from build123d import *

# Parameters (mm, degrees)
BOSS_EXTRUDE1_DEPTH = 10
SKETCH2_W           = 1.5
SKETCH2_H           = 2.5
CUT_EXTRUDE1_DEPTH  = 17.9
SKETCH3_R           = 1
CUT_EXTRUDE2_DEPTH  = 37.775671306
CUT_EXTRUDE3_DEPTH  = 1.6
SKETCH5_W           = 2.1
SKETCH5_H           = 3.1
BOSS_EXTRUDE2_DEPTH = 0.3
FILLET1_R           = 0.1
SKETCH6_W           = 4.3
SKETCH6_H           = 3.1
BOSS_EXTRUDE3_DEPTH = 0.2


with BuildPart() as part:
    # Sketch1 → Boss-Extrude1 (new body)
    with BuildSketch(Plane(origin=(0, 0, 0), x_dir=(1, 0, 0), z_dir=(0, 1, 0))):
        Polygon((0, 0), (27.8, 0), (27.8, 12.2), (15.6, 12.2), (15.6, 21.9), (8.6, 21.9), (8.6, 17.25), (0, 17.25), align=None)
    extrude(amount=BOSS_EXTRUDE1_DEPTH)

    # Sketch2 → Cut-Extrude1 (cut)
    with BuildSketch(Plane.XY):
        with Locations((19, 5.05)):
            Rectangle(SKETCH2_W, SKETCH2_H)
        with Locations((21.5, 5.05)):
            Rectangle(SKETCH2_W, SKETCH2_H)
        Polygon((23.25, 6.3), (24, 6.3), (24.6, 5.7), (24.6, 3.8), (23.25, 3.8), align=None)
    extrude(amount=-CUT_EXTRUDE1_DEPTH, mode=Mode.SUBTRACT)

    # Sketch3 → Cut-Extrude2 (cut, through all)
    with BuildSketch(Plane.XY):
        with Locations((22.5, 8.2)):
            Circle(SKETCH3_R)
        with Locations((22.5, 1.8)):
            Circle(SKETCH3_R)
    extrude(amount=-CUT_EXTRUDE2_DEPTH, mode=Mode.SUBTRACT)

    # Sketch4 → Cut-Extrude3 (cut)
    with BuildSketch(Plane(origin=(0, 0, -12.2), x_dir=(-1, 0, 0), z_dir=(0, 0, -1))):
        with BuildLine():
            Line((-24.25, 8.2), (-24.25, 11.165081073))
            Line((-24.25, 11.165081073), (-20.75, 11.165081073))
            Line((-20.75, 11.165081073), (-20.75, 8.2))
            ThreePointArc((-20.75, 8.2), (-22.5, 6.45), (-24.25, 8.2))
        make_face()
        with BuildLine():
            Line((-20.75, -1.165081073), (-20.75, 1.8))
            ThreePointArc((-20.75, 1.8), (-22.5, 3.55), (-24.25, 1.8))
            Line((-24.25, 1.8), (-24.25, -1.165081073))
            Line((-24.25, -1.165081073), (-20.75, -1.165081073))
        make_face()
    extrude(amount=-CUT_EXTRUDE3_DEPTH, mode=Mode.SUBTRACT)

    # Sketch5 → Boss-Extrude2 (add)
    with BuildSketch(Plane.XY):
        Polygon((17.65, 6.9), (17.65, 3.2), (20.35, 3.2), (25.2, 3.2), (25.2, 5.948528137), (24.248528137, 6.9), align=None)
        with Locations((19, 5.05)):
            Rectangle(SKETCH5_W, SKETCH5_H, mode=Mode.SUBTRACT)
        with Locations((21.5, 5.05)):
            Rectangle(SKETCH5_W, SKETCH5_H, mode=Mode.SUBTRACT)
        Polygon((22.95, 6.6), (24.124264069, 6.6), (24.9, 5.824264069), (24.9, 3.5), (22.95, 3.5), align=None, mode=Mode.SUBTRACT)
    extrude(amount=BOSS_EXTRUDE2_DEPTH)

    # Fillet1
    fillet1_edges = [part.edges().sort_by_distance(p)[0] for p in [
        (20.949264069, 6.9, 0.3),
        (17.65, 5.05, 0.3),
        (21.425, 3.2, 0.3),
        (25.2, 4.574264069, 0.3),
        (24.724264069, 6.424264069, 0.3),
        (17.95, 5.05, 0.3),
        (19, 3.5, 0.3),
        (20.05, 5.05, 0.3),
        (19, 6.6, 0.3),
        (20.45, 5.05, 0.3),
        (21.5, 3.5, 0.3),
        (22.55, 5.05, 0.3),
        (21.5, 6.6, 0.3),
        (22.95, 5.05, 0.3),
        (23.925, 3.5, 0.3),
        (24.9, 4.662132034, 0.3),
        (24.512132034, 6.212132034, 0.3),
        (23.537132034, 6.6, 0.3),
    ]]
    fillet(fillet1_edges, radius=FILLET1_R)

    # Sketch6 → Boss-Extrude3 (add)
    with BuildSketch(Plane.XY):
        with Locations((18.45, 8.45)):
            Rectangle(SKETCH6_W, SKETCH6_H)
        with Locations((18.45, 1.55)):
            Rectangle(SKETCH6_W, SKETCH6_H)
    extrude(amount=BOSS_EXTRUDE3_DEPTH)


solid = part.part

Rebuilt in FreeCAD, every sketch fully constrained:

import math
import FreeCAD as App
import Part
import Sketcher
from FreeCAD import Vector
Q = App.Units.Quantity


def edges_at(feature, points):
    """Names of the edges that pass closest to the given points."""
    edges = feature.Shape.Edges
    near = lambda p: min(range(len(edges)), key=lambda i: edges[i].distToShape(Part.Vertex(*p))[0])
    return sorted({f"Edge{near(p) + 1}" for p in points})


def add_polygon(sketch, points):
    """Adds a closed chain of lines whose ends are joined by coincident constraints."""
    first, n = sketch.GeometryCount, len(points)
    for a, b in zip(points, points[1:] + points[:1]):
        sketch.addGeometry(Part.LineSegment(App.Vector(*a, 0), App.Vector(*b, 0)), False)
    for i in range(n):
        sketch.addConstraint(Sketcher.Constraint("Coincident", first + i, 2, first + (i + 1) % n, 1))

doc = App.newDocument("Part")
body = doc.addObject("PartDesign::Body", "Body")

# Sketch on XZ plane
sketch1 = body.newObject("Sketcher::SketchObject", "Sketch")
sketch1.AttachmentSupport = (doc.getObject("XZ_Plane"), [""])
sketch1.MapMode = "FlatFace"
add_polygon(sketch1, [(0, 0), (27.8, 0), (27.8, -12.2), (15.6, -12.2), (15.6, -21.9), (8.6, -21.9), (8.6, -17.2), (0, -17.2)])  # lines 0-7
sketch1.addConstraint(Sketcher.Constraint("Horizontal", 0))
sketch1.addConstraint(Sketcher.Constraint("Vertical", 1))
sketch1.addConstraint(Sketcher.Constraint("Horizontal", 2))
sketch1.addConstraint(Sketcher.Constraint("Vertical", 3))
sketch1.addConstraint(Sketcher.Constraint("Horizontal", 4))
sketch1.addConstraint(Sketcher.Constraint("Vertical", 5))
sketch1.addConstraint(Sketcher.Constraint("Horizontal", 6))
sketch1.addConstraint(Sketcher.Constraint("Vertical", 7))
sketch1.addConstraint(Sketcher.Constraint("Coincident", 7, 2, -1, 1))
sketch1.addConstraint(Sketcher.Constraint("Equal", 2, 1))
sketch1.addConstraint(Sketcher.Constraint("DistanceX", 4, 2, 4, 1, 7.0))
sketch1.addConstraint(Sketcher.Constraint("DistanceX", 0, 1, 0, 2, 27.8))
sketch1.addConstraint(Sketcher.Constraint("DistanceX", 2, 2, 2, 1, 12.2))
sketch1.addConstraint(Sketcher.Constraint("DistanceY", 3, 2, 3, 1, 9.7))
sketch1.addConstraint(Sketcher.Constraint("DistanceY", 5, 1, 5, 2, 4.65))
pad1 = body.newObject("PartDesign::Pad", "Pad")
pad1.Profile = sketch1
pad1.Length = 10
pad1.Reversed = True

# Sketch on XY plane
sketch2 = body.newObject("Sketcher::SketchObject", "Sketch001")
sketch2.AttachmentSupport = (doc.getObject("XY_Plane"), [""])
sketch2.MapMode = "FlatFace"
add_polygon(sketch2, [(18.2, 6.3), (18.2, 3.8), (19.8, 3.8), (19.8, 6.3)])  # lines 0-3
add_polygon(sketch2, [(20.8, 6.3), (20.8, 3.8), (22.2, 3.8), (22.2, 6.3)])  # lines 4-7
add_polygon(sketch2, [(24, 6.3), (23.2, 6.3), (23.2, 3.8), (24.6, 3.8), (24.6, 5.7)])  # lines 8-12
sketch2.addConstraint(Sketcher.Constraint("Vertical", 0))
sketch2.addConstraint(Sketcher.Constraint("Horizontal", 1))
sketch2.addConstraint(Sketcher.Constraint("Vertical", 2))
sketch2.addConstraint(Sketcher.Constraint("Horizontal", 3))
sketch2.addConstraint(Sketcher.Constraint("Vertical", 4))
sketch2.addConstraint(Sketcher.Constraint("Horizontal", 5))
sketch2.addConstraint(Sketcher.Constraint("Vertical", 6))
sketch2.addConstraint(Sketcher.Constraint("Horizontal", 7))
sketch2.addConstraint(Sketcher.Constraint("Horizontal", 8))
sketch2.addConstraint(Sketcher.Constraint("Vertical", 9))
sketch2.addConstraint(Sketcher.Constraint("Horizontal", 10))
sketch2.addConstraint(Sketcher.Constraint("Vertical", 11))
sketch2.addConstraint(Sketcher.Constraint("Horizontal", 1, 2, 4, 2))
sketch2.addConstraint(Sketcher.Constraint("Horizontal", 3, 2, 6, 2))
sketch2.addConstraint(Sketcher.Constraint("Horizontal", 7, 2, 8, 2))
sketch2.addConstraint(Sketcher.Constraint("Horizontal", 5, 2, 9, 2))
sketch2.addConstraint(Sketcher.Constraint("Equal", 3, 5))
sketch2.addConstraint(Sketcher.Constraint("Angle", 12, Q("135 deg")))
sketch2.addConstraint(Sketcher.Constraint("DistanceX", 1, 1, 1, 2, 1.5))
sketch2.addConstraint(Sketcher.Constraint("DistanceY", 0, 2, 0, 1, 2.5))
sketch2.addConstraint(Sketcher.Constraint("DistanceY", 11, 1, 11, 2, 1.9))
sketch2.addConstraint(Sketcher.Constraint("DistanceX", -1, 1, 12, 2, 24.0))
sketch2.addConstraint(Sketcher.Constraint("DistanceX", 1, 2, 4, 2, 1.0))
sketch2.addConstraint(Sketcher.Constraint("DistanceX", 6, 2, 8, 2, 1.0))
sketch2.addConstraint(Sketcher.Constraint("DistanceX", 8, 2, 8, 1, 0.75))
sketch2.addConstraint(Sketcher.Constraint("DistanceY", -1, 1, 0, 2, 3.8))
pocket1 = body.newObject("PartDesign::Pocket", "Pocket")
pocket1.Profile = sketch2
pocket1.Length = 17.9

# Sketch on XY plane
sketch3 = body.newObject("Sketcher::SketchObject", "Sketch002")
sketch3.AttachmentSupport = (doc.getObject("XY_Plane"), [""])
sketch3.MapMode = "FlatFace"
sketch3.addGeometry(Part.Circle(Vector(22.5, 8.2, 0), Vector(0, 0, 1), 1), False)
sketch3.addGeometry(Part.Circle(Vector(22.5, 1.8, 0), Vector(0, 0, 1), 1), False)
sketch3.addConstraint(Sketcher.Constraint("Equal", 0, 1))
sketch3.addConstraint(Sketcher.Constraint("Vertical", 0, 3, 1, 3))
sketch3.addConstraint(Sketcher.Constraint("Diameter", 0, 2.0))
sketch3.addConstraint(Sketcher.Constraint("DistanceX", -1, 1, 0, 3, 22.5))
sketch3.addConstraint(Sketcher.Constraint("DistanceY", -1, 1, 0, 3, 8.2))
sketch3.addConstraint(Sketcher.Constraint("DistanceY", -1, 1, 1, 3, 1.8))
pocket2 = body.newObject("PartDesign::Pocket", "Pocket001")
pocket2.Profile = sketch3
pocket2.Type = "ThroughAll"

# Sketch on XY plane
sketch4 = body.newObject("Sketcher::SketchObject", "Sketch003")
sketch4.AttachmentSupport = (doc.getObject("XY_Plane"), [""])
sketch4.MapMode = "FlatFace"
sketch4.AttachmentOffset = App.Placement(Vector(0, 0, -12.2), App.Rotation())
sketch4.addGeometry(Part.LineSegment(Vector(24.2, 11.2, 0), Vector(24.2, 8.2, 0)), False)
sketch4.addGeometry(Part.ArcOfCircle(Part.Circle(Vector(22.5, 8.2, 0), Vector(0, 0, 1), 1.8), math.radians(180), math.radians(360)), False)
sketch4.addGeometry(Part.LineSegment(Vector(20.8, 8.2, 0), Vector(20.8, 11.2, 0)), False)
sketch4.addGeometry(Part.LineSegment(Vector(20.8, 11.2, 0), Vector(24.2, 11.2, 0)), False)
sketch4.addGeometry(Part.LineSegment(Vector(20.8, -1.2, 0), Vector(20.8, 1.8, 0)), False)
sketch4.addGeometry(Part.ArcOfCircle(Part.Circle(Vector(22.5, 1.8, 0), Vector(0, 0, 1), 1.8), math.radians(0), math.radians(180)), False)
sketch4.addGeometry(Part.LineSegment(Vector(24.2, 1.8, 0), Vector(24.2, -1.2, 0)), False)
sketch4.addGeometry(Part.LineSegment(Vector(24.2, -1.2, 0), Vector(20.8, -1.2, 0)), False)
sketch4.addConstraint(Sketcher.Constraint("Tangent", 0, 2, 1, 2))
sketch4.addConstraint(Sketcher.Constraint("Tangent", 1, 1, 2, 1))
sketch4.addConstraint(Sketcher.Constraint("Coincident", 2, 2, 3, 1))
sketch4.addConstraint(Sketcher.Constraint("Coincident", 3, 2, 0, 1))
sketch4.addConstraint(Sketcher.Constraint("Tangent", 4, 2, 5, 2))
sketch4.addConstraint(Sketcher.Constraint("Tangent", 5, 1, 6, 1))
sketch4.addConstraint(Sketcher.Constraint("Coincident", 6, 2, 7, 1))
sketch4.addConstraint(Sketcher.Constraint("Coincident", 7, 2, 4, 1))
sketch4.addConstraint(Sketcher.Constraint("Vertical", 0))
sketch4.addConstraint(Sketcher.Constraint("Vertical", 2))
sketch4.addConstraint(Sketcher.Constraint("Horizontal", 3))
sketch4.addConstraint(Sketcher.Constraint("Vertical", 4))
sketch4.addConstraint(Sketcher.Constraint("Vertical", 6))
sketch4.addConstraint(Sketcher.Constraint("Horizontal", 7))
sketch4.addConstraint(Sketcher.Constraint("Equal", 1, 5))
sketch4.addConstraint(Sketcher.Constraint("Vertical", 1, 3, 5, 3))
sketch4.addConstraint(Sketcher.Constraint("Equal", 2, 4))
sketch4.addConstraint(Sketcher.Constraint("Radius", 1, 1.75))
sketch4.addConstraint(Sketcher.Constraint("DistanceX", -1, 1, 1, 3, 22.5))
sketch4.addConstraint(Sketcher.Constraint("DistanceY", -1, 1, 1, 3, 8.2))
sketch4.addConstraint(Sketcher.Constraint("DistanceY", -1, 1, 5, 3, 1.8))
sketch4.addConstraint(Sketcher.Constraint("DistanceY", 0, 2, 0, 1, 2.965081))
pocket3 = body.newObject("PartDesign::Pocket", "Pocket002")
pocket3.Profile = sketch4
pocket3.Length = 1.6
pocket3.Reversed = True

# Sketch on XY plane
sketch5 = body.newObject("Sketcher::SketchObject", "Sketch004")
sketch5.AttachmentSupport = (doc.getObject("XY_Plane"), [""])
sketch5.MapMode = "FlatFace"
add_polygon(sketch5, [(17.6, 6.9), (17.6, 3.2), (25.2, 3.2), (25.2, 5.9), (24.2, 6.9)])  # lines 0-4
add_polygon(sketch5, [(20.1, 3.5), (17.9, 3.5), (17.9, 6.6), (20.1, 6.6)])  # lines 5-8
add_polygon(sketch5, [(22.6, 3.5), (20.4, 3.5), (20.4, 6.6), (22.6, 6.6)])  # lines 9-12
add_polygon(sketch5, [(22.9, 3.5), (22.9, 6.6), (24.1, 6.6), (24.9, 5.8), (24.9, 3.5)])  # lines 13-17
sketch5.addConstraint(Sketcher.Constraint("Vertical", 0))
sketch5.addConstraint(Sketcher.Constraint("Horizontal", 1))
sketch5.addConstraint(Sketcher.Constraint("Vertical", 2))
sketch5.addConstraint(Sketcher.Constraint("Horizontal", 4))
sketch5.addConstraint(Sketcher.Constraint("Horizontal", 5))
sketch5.addConstraint(Sketcher.Constraint("Vertical", 6))
sketch5.addConstraint(Sketcher.Constraint("Horizontal", 7))
sketch5.addConstraint(Sketcher.Constraint("Vertical", 8))
sketch5.addConstraint(Sketcher.Constraint("Horizontal", 9))
sketch5.addConstraint(Sketcher.Constraint("Vertical", 10))
sketch5.addConstraint(Sketcher.Constraint("Horizontal", 11))
sketch5.addConstraint(Sketcher.Constraint("Vertical", 12))
sketch5.addConstraint(Sketcher.Constraint("Vertical", 13))
sketch5.addConstraint(Sketcher.Constraint("Horizontal", 14))
sketch5.addConstraint(Sketcher.Constraint("Vertical", 16))
sketch5.addConstraint(Sketcher.Constraint("Horizontal", 17))
sketch5.addConstraint(Sketcher.Constraint("Parallel", 3, 15))
sketch5.addConstraint(Sketcher.Constraint("Horizontal", 8, 2, 9, 2))
sketch5.addConstraint(Sketcher.Constraint("Horizontal", 7, 2, 10, 2))
sketch5.addConstraint(Sketcher.Constraint("Horizontal", 11, 2, 13, 2))
sketch5.addConstraint(Sketcher.Constraint("Horizontal", 12, 2, 16, 2))
sketch5.addConstraint(Sketcher.Constraint("Equal", 7, 9))
sketch5.addConstraint(Sketcher.Constraint("Angle", 3, Q("135 deg")))
sketch5.addConstraint(Sketcher.Constraint("DistanceX", 5, 2, 5, 1, 2.1))
sketch5.addConstraint(Sketcher.Constraint("DistanceY", 0, 2, 0, 1, 3.7))
sketch5.addConstraint(Sketcher.Constraint("DistanceY", 6, 1, 6, 2, 3.1))
sketch5.addConstraint(Sketcher.Constraint("DistanceX", 1, 1, 1, 2, 7.55))
sketch5.addConstraint(Sketcher.Constraint("DistanceX", 17, 2, 17, 1, 1.95))
sketch5.addConstraint(Sketcher.Constraint("DistanceY", -1, 1, 0, 2, 3.2))
sketch5.addConstraint(Sketcher.Constraint("DistanceX", -1, 1, 1, 2, 25.2))
sketch5.addConstraint(Sketcher.Constraint("DistanceY", -1, 1, 5, 2, 3.5))
sketch5.addConstraint(Sketcher.Constraint("DistanceX", -1, 1, 15, 2, 24.9))
sketch5.addConstraint(Sketcher.Constraint("DistanceX", 0, 2, 5, 2, 0.3))
sketch5.addConstraint(Sketcher.Constraint("DistanceX", 8, 2, 9, 2, 0.4))
sketch5.addConstraint(Sketcher.Constraint("DistanceX", 4, 2, 4, 1, 6.598528))
sketch5.addConstraint(Sketcher.Constraint("DistanceX", 14, 1, 14, 2, 1.174264))
pad2 = body.newObject("PartDesign::Pad", "Pad001")
pad2.Profile = sketch5
pad2.Length = 0.3
doc.recompute()

fillet = body.newObject("PartDesign::Fillet", "Fillet")
fillet.Base = (pad2, edges_at(pad2, [
    (20.949, 6.9, 0.3),
    (17.65, 5.05, 0.3),
    (21.425, 3.2, 0.3),
    (25.2, 4.574, 0.3),
    (24.724, 6.424, 0.3),
    (17.95, 5.05, 0.3),
    (19, 3.5, 0.3),
    (20.05, 5.05, 0.3),
    (19, 6.6, 0.3),
    (20.45, 5.05, 0.3),
    (21.5, 3.5, 0.3),
    (22.55, 5.05, 0.3),
    (21.5, 6.6, 0.3),
    (22.95, 5.05, 0.3),
    (23.925, 3.5, 0.3),
    (24.9, 4.662, 0.3),
    (24.512, 6.212, 0.3),
    (23.537, 6.6, 0.3),
]))
fillet.Radius = 0.1

# Sketch on XY plane
sketch6 = body.newObject("Sketcher::SketchObject", "Sketch005")
sketch6.AttachmentSupport = (doc.getObject("XY_Plane"), [""])
sketch6.MapMode = "FlatFace"
add_polygon(sketch6, [(16.3, 10), (16.3, 6.9), (20.6, 6.9), (20.6, 10)])  # lines 0-3
add_polygon(sketch6, [(16.3, 3.1), (16.3, 0), (20.6, 0), (20.6, 3.1)])  # lines 4-7
sketch6.addConstraint(Sketcher.Constraint("Vertical", 0))
sketch6.addConstraint(Sketcher.Constraint("Horizontal", 1))
sketch6.addConstraint(Sketcher.Constraint("Vertical", 2))
sketch6.addConstraint(Sketcher.Constraint("Horizontal", 3))
sketch6.addConstraint(Sketcher.Constraint("Vertical", 4))
sketch6.addConstraint(Sketcher.Constraint("Horizontal", 5))
sketch6.addConstraint(Sketcher.Constraint("Vertical", 6))
sketch6.addConstraint(Sketcher.Constraint("Horizontal", 7))
sketch6.addConstraint(Sketcher.Constraint("PointOnObject", 4, 2, -1))
sketch6.addConstraint(Sketcher.Constraint("Vertical", 3, 2, 4, 2))
sketch6.addConstraint(Sketcher.Constraint("Vertical", 2, 2, 5, 2))
sketch6.addConstraint(Sketcher.Constraint("Equal", 2, 4))
sketch6.addConstraint(Sketcher.Constraint("DistanceX", 1, 1, 1, 2, 4.3))
sketch6.addConstraint(Sketcher.Constraint("DistanceY", 0, 2, 0, 1, 3.1))
sketch6.addConstraint(Sketcher.Constraint("DistanceY", -1, 1, 2, 2, 10.0))
sketch6.addConstraint(Sketcher.Constraint("DistanceX", -1, 1, 0, 2, 16.3))
pad3 = body.newObject("PartDesign::Pad", "Pad002")
pad3.Profile = sketch6
pad3.Length = 0.2

doc.recompute()
